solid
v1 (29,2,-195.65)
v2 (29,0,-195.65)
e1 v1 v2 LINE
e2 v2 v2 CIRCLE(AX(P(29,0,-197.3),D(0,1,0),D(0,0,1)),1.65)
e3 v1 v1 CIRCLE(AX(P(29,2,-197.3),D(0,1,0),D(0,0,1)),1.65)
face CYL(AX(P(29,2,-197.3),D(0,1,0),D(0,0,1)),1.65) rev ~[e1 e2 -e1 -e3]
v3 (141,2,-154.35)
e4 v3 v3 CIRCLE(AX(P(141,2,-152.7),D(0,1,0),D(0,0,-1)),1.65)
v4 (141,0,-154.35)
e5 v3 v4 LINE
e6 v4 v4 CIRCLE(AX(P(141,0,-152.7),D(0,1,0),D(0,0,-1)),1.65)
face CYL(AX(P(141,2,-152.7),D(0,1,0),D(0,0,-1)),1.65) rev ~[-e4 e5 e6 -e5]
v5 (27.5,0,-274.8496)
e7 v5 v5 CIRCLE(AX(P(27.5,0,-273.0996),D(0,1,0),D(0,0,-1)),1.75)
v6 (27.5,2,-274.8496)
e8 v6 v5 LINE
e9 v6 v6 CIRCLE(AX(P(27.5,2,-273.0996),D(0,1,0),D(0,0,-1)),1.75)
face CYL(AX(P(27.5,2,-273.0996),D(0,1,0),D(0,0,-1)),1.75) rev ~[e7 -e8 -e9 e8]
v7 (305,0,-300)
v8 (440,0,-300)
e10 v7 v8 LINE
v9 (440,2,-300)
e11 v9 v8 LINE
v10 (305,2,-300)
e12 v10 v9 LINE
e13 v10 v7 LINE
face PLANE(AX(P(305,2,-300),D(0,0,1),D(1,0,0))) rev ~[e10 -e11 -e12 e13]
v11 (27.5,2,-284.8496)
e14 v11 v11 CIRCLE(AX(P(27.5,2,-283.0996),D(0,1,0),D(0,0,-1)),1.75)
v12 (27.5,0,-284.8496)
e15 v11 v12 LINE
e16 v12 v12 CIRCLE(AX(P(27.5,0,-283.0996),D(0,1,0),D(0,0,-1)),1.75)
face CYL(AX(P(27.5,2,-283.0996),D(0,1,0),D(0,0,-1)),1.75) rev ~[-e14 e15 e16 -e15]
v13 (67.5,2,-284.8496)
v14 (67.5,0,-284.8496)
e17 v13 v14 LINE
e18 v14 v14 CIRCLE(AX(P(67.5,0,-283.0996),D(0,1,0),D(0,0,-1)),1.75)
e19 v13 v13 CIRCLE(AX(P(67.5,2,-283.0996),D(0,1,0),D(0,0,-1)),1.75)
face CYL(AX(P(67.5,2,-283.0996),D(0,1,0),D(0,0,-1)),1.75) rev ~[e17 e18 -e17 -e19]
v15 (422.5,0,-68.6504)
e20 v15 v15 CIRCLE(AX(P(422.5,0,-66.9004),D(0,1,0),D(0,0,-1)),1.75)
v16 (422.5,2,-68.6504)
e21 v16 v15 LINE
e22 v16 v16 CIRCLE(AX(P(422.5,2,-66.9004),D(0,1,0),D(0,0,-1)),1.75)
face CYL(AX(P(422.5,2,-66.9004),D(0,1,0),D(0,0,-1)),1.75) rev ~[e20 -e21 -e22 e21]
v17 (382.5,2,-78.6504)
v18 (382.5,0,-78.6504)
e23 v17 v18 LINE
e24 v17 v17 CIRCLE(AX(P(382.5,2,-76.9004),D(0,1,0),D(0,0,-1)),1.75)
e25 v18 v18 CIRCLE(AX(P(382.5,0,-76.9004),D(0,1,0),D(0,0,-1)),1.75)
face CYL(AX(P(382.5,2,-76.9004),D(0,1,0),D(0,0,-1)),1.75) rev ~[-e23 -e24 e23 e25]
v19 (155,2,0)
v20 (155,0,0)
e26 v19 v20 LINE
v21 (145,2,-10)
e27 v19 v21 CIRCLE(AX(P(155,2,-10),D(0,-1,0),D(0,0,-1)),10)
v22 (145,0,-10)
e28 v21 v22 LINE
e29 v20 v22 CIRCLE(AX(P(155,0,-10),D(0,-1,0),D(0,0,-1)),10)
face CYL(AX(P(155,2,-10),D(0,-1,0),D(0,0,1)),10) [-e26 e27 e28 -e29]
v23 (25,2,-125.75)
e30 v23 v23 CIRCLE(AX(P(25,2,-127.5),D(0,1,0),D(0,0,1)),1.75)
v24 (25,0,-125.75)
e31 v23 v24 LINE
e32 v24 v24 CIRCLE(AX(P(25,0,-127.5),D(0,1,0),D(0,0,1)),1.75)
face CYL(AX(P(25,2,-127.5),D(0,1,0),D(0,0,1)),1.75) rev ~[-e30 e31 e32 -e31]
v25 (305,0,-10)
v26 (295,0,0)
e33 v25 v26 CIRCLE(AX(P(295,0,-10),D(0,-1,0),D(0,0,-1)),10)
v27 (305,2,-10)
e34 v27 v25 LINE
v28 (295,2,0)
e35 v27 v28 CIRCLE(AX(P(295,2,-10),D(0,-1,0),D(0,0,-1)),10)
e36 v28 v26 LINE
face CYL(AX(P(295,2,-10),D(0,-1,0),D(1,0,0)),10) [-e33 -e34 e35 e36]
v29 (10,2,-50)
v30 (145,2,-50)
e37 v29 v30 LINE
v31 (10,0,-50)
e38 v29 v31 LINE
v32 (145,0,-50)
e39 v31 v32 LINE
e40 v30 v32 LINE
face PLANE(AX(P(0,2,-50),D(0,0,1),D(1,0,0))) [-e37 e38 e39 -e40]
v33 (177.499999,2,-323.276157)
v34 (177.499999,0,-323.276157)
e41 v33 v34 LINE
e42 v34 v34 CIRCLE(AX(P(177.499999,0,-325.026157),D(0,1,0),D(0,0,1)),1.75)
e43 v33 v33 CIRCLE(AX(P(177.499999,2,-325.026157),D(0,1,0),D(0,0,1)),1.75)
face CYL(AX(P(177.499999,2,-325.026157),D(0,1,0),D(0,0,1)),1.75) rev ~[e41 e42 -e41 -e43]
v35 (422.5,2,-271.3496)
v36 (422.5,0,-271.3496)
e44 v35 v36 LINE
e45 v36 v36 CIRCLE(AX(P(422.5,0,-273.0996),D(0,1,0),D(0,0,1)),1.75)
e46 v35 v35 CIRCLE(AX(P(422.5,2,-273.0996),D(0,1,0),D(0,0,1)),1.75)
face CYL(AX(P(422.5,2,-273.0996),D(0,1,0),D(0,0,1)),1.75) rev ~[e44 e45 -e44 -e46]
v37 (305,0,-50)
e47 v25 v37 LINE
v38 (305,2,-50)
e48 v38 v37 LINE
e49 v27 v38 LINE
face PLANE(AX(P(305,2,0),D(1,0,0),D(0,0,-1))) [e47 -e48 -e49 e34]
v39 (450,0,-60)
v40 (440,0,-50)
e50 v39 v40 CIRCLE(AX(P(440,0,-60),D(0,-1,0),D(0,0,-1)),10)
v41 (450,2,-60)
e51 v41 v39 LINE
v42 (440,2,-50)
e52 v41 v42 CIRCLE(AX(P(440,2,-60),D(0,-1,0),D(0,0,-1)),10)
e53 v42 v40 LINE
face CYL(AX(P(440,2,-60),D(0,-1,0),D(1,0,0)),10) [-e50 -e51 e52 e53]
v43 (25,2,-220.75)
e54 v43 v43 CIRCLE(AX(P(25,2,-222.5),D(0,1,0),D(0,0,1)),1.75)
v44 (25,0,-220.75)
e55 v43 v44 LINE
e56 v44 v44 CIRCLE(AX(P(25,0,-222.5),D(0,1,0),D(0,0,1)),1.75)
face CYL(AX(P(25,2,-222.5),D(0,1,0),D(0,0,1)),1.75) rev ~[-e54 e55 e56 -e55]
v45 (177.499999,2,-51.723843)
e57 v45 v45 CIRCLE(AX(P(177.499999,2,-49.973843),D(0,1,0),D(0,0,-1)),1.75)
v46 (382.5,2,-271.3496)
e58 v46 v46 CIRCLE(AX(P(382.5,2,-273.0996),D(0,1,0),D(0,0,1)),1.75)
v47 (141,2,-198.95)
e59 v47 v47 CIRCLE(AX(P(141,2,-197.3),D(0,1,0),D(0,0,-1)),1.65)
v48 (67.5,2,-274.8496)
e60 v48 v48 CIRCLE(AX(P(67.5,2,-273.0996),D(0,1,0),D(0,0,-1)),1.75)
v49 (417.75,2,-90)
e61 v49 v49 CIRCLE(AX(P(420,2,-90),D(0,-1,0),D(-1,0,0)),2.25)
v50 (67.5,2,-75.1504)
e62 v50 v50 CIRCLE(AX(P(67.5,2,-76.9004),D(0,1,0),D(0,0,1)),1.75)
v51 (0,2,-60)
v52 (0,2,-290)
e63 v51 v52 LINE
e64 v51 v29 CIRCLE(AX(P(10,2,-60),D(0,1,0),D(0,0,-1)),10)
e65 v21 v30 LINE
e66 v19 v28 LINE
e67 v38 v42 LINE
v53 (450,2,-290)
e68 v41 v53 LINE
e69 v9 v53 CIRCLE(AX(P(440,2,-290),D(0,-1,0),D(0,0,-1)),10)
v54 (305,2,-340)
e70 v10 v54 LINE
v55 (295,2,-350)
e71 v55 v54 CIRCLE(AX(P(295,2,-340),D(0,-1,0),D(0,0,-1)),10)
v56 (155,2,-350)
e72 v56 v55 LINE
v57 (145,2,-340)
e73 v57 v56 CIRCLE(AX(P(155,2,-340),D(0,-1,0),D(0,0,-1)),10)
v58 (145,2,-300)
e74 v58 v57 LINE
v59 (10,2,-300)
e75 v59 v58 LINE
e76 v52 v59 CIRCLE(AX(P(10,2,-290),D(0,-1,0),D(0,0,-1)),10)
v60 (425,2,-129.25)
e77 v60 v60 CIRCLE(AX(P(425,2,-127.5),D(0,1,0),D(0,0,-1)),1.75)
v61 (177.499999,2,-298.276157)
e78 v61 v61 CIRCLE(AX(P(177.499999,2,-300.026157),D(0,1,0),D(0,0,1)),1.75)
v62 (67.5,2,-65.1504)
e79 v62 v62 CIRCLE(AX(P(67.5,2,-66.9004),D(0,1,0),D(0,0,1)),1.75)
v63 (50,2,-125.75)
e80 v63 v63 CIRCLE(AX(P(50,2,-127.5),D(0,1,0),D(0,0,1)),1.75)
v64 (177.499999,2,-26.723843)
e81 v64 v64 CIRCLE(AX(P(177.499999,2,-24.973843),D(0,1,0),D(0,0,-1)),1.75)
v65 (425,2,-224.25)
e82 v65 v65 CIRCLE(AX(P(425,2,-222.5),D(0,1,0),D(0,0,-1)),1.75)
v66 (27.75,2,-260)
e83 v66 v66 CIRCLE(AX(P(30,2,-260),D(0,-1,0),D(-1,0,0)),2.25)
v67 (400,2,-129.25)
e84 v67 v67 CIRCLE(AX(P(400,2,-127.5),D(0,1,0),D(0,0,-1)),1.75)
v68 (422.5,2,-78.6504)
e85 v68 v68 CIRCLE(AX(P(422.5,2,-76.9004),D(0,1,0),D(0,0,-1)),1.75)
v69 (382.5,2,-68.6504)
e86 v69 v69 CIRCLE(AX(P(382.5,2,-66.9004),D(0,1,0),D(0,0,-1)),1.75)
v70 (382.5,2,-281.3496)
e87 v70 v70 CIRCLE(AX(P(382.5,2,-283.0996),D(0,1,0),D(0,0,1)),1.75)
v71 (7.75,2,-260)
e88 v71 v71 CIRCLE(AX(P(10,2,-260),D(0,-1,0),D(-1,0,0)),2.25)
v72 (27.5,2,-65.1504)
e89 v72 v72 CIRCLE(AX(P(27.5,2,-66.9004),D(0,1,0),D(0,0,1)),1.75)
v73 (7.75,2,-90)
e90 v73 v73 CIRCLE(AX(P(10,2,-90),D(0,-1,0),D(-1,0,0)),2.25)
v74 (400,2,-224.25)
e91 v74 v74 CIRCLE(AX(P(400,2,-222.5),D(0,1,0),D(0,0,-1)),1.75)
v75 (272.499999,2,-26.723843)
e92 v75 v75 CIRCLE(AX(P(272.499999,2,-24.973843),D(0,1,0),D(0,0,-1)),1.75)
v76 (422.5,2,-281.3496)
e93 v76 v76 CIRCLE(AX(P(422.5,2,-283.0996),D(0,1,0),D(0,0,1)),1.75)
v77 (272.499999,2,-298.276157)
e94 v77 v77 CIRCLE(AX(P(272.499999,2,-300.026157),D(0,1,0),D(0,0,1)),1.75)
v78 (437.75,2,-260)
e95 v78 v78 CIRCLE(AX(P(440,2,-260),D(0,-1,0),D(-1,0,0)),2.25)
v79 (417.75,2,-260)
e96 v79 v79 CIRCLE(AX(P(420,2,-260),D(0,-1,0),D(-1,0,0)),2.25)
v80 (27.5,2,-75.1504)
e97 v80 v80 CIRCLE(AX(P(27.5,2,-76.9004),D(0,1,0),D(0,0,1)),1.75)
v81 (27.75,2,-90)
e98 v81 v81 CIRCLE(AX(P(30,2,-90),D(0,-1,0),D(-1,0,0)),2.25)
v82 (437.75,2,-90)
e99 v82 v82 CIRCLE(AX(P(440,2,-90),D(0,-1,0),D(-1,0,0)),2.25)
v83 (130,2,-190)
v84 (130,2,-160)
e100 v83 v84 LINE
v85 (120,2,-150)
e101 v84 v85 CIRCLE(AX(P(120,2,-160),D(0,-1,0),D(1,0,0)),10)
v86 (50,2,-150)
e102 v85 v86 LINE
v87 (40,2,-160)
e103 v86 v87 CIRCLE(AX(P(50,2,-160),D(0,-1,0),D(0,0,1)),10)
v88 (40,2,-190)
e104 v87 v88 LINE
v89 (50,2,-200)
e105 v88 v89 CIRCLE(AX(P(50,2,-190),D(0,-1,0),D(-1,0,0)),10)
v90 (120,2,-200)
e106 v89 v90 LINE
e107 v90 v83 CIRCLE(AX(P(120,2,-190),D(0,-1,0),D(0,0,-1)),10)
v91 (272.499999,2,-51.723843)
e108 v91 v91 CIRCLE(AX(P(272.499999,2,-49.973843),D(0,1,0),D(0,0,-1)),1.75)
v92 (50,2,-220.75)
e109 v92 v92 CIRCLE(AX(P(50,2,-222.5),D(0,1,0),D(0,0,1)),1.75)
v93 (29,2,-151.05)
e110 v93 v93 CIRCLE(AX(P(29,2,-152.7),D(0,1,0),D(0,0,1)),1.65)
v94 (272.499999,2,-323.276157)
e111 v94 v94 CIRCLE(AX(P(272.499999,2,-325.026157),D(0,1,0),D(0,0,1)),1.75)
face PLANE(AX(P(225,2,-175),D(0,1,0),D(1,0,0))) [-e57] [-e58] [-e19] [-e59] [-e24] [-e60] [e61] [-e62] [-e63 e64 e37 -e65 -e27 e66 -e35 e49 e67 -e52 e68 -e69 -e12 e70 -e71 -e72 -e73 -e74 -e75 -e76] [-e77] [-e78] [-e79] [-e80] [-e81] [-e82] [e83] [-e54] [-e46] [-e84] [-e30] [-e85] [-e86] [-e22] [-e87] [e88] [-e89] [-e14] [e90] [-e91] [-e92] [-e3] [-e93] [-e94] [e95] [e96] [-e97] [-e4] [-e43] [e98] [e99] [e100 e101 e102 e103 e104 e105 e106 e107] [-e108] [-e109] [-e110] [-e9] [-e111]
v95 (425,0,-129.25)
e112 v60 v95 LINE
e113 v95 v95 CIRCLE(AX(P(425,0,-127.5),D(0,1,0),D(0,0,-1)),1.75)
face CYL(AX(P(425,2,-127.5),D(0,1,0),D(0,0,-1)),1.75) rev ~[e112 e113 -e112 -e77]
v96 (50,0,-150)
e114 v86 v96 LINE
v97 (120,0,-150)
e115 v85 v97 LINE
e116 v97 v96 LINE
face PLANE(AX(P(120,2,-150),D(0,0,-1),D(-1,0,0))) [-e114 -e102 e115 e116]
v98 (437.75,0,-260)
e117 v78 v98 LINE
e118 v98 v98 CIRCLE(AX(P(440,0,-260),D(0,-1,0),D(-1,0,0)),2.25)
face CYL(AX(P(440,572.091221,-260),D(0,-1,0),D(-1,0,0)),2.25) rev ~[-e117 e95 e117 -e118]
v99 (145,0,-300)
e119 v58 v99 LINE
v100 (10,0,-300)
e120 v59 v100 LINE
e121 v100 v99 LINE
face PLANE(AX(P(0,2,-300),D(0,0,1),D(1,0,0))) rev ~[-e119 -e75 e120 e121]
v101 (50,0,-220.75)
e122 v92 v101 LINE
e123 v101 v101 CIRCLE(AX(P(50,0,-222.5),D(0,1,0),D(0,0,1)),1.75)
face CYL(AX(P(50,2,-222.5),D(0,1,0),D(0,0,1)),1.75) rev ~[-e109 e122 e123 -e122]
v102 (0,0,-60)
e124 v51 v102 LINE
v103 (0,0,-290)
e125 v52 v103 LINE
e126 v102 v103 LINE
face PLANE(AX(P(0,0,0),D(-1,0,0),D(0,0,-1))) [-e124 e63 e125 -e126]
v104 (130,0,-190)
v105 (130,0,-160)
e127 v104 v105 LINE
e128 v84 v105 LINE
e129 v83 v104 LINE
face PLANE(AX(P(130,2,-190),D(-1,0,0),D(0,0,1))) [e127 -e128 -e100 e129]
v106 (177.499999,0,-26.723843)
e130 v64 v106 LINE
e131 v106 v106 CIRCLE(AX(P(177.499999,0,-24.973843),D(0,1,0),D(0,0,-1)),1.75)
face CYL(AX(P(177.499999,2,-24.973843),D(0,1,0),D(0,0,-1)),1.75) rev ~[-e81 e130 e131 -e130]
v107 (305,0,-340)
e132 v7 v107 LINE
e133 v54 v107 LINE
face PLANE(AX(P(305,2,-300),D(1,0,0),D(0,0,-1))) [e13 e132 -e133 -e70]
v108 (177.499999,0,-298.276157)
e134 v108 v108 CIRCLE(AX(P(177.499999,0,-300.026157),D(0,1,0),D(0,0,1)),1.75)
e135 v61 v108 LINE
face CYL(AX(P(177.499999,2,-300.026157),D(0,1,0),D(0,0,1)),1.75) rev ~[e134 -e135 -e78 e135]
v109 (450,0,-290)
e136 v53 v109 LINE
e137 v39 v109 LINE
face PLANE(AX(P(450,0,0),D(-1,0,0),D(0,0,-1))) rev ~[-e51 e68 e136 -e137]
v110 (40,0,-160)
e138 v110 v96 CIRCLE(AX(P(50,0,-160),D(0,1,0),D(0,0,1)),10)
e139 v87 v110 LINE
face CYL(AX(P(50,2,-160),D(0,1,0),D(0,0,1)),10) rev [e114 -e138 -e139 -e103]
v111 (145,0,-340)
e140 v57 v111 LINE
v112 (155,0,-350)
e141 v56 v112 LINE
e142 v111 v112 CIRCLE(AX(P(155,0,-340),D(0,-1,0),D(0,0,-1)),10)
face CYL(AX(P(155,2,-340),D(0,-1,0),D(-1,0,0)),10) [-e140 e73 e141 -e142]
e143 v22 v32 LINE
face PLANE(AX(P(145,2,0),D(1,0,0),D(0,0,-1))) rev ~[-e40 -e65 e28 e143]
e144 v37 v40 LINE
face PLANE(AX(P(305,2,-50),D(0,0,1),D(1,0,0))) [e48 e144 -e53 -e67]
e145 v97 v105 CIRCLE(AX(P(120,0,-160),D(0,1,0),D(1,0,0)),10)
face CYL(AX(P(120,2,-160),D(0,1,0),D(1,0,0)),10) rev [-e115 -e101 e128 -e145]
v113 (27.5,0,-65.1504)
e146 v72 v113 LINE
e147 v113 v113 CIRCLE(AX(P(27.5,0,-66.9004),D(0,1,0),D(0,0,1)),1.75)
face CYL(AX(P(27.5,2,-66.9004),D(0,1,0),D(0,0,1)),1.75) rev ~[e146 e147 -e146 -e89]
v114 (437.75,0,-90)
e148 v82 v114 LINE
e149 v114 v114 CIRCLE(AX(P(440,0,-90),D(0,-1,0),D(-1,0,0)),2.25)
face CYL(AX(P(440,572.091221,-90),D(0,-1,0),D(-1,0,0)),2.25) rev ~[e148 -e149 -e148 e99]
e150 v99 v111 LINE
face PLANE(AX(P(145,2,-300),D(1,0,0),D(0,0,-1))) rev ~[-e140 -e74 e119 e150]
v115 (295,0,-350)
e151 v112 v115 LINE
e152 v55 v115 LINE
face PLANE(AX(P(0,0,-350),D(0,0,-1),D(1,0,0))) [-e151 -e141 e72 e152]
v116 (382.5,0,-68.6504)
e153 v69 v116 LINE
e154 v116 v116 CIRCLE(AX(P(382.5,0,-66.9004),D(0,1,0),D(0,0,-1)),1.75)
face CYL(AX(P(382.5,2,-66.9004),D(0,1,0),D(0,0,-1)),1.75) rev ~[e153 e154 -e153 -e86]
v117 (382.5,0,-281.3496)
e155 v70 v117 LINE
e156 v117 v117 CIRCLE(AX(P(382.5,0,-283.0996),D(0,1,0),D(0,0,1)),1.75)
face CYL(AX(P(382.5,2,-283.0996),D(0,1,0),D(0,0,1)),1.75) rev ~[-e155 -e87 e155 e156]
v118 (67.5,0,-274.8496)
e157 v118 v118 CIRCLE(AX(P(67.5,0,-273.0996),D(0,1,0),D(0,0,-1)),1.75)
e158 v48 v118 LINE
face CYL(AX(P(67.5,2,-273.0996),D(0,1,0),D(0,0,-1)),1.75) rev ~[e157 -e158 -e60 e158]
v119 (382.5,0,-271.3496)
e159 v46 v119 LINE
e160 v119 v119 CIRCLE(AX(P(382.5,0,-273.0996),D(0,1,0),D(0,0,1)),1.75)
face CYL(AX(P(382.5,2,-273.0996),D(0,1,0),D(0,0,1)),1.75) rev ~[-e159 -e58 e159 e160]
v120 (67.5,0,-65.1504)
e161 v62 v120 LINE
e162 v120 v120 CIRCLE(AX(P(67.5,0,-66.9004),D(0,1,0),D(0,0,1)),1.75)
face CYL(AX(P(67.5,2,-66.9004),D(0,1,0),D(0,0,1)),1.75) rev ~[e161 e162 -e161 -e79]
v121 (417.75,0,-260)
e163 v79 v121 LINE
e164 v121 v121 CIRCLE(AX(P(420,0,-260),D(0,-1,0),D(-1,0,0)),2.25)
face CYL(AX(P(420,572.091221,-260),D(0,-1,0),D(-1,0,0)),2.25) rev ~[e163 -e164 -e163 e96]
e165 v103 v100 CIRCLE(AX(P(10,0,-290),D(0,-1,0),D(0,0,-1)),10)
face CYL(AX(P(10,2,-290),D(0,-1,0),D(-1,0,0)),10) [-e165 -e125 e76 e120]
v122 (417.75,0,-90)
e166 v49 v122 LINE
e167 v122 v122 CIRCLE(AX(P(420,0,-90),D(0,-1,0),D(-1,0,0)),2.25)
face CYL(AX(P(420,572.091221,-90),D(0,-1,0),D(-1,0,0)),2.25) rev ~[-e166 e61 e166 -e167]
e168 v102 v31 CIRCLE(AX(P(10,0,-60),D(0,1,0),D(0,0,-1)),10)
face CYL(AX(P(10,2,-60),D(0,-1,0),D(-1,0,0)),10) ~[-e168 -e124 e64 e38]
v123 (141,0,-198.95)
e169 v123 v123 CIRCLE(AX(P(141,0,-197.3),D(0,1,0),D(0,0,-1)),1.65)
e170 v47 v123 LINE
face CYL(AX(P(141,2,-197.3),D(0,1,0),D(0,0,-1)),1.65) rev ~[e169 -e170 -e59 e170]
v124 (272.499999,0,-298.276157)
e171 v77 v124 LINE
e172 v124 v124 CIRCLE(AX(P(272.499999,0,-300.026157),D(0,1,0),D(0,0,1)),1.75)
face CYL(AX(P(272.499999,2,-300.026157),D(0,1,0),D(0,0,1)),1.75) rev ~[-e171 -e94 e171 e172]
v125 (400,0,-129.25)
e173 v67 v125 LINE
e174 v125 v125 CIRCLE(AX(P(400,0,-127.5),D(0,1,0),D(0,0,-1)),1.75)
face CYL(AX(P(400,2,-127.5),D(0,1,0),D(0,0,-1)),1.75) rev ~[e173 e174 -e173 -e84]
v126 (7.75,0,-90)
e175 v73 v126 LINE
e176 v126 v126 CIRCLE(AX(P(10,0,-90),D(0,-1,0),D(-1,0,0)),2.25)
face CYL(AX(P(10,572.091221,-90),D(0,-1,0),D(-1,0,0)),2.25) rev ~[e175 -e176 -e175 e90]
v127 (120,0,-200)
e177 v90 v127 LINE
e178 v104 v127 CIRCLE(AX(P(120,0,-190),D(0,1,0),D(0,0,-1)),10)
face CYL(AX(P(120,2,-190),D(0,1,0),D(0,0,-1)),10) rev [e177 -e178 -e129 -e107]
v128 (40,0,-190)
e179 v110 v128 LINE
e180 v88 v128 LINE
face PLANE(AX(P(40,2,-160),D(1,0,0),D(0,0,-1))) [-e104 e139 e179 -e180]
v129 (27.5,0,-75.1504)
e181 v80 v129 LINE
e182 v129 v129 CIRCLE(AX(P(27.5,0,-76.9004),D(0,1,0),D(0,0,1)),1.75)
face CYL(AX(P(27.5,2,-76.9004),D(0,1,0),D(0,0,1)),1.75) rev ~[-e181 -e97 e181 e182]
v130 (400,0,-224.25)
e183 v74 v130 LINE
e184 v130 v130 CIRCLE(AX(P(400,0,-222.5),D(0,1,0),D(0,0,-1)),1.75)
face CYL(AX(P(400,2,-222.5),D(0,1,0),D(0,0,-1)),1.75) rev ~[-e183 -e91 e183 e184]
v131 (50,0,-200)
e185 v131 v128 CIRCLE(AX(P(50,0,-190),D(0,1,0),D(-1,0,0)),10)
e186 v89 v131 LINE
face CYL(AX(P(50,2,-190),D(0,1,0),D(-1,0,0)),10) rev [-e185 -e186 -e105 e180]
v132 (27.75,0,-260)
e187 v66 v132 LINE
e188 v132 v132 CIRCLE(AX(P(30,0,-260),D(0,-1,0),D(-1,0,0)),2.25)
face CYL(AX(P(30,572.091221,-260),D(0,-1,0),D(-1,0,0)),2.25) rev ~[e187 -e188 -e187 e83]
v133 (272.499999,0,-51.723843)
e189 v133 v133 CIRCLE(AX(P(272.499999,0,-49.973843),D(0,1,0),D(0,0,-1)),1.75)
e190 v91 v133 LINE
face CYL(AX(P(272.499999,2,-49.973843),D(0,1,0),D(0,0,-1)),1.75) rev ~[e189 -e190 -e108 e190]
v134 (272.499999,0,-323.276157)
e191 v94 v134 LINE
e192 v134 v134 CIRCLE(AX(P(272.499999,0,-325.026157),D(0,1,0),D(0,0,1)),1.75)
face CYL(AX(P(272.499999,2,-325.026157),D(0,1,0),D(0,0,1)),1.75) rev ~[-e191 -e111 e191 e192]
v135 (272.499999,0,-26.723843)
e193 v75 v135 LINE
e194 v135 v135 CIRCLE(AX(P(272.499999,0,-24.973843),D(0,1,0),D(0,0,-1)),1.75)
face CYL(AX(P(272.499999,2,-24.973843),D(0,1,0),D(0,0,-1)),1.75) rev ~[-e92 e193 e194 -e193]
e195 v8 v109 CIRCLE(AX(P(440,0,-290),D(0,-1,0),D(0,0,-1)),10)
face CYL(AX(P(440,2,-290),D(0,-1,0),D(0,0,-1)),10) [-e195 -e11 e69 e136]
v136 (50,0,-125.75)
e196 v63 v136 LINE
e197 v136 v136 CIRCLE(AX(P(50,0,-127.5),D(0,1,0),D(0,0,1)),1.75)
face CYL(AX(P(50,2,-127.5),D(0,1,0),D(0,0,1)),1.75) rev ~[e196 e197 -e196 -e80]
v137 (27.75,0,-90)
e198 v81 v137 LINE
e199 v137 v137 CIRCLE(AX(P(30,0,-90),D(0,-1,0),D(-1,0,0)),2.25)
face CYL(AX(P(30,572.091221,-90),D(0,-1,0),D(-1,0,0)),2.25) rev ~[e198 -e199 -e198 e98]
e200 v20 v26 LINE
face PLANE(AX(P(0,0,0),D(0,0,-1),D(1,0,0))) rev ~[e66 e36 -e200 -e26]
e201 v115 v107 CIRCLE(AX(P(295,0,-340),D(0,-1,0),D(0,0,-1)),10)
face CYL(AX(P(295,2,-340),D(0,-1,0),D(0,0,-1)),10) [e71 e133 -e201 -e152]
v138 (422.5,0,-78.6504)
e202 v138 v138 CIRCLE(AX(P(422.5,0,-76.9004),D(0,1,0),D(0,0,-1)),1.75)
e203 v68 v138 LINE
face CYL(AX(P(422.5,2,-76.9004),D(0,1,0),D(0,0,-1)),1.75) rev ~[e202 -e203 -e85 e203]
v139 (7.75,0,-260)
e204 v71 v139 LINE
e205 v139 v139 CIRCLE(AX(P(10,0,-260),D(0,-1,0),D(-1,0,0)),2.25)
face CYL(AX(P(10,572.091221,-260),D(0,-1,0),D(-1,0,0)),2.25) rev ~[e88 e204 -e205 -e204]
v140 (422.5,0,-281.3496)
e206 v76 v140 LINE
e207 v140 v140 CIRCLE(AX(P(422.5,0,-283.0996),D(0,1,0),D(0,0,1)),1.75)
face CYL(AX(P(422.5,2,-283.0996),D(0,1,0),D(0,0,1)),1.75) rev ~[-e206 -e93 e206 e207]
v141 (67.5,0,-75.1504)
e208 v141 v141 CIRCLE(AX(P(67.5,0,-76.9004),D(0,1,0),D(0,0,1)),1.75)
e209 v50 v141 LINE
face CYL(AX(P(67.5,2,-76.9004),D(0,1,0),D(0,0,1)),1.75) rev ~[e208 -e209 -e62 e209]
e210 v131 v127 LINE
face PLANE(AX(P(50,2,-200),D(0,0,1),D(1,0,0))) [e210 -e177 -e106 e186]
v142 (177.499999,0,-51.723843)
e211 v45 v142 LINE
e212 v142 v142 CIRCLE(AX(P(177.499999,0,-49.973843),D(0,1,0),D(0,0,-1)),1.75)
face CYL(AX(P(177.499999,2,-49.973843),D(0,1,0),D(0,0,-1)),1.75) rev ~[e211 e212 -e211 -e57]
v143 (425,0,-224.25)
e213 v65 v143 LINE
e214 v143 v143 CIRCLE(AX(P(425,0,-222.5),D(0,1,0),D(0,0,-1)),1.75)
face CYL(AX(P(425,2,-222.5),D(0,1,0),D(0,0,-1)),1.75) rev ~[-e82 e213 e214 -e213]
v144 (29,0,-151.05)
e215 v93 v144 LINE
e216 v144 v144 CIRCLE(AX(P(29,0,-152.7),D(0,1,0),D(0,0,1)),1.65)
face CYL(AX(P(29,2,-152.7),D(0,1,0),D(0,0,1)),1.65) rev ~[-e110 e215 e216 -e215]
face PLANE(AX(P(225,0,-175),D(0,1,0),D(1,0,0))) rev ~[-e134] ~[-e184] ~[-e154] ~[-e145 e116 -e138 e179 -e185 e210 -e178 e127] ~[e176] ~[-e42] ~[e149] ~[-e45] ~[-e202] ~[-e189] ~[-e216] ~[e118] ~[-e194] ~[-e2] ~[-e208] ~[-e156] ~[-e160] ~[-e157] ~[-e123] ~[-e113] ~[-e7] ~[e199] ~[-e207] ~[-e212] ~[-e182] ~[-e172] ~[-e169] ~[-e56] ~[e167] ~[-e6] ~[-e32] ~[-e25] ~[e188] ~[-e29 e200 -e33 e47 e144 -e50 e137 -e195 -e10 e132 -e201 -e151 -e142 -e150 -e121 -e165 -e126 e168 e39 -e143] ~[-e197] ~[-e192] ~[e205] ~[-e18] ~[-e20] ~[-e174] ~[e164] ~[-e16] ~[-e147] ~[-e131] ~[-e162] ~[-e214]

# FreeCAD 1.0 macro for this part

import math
import FreeCAD as App
import Part
import Sketcher

V = App.Vector


def edges_at(feature, points):
    """Names of the edges that pass closest to the given points."""
    edges = feature.Shape.Edges
    near = lambda p: min(range(len(edges)), key=lambda i: edges[i].distToShape(Part.Vertex(*p))[0])
    return sorted({f"Edge{near(p) + 1}" for p in points})

doc = App.newDocument("Part")
body = doc.addObject("PartDesign::Body", "Body")

sketch1 = body.newObject("Sketcher::SketchObject", "Sketch")
sketch1.AttachmentSupport = (doc.getObject("XZ_Plane"), [""])
sketch1.MapMode = "FlatFace"
sketch1.addGeometry([
    Part.LineSegment(V(0, -350, 0), V(0, 0, 0)),
    Part.LineSegment(V(0, 0, 0), V(450, 0, 0)),
    Part.LineSegment(V(450, 0, 0), V(450, -350, 0)),
    Part.LineSegment(V(450, -350, 0), V(0, -350, 0)),
], False)
sketch1.addConstraint([
    Sketcher.Constraint("Coincident", 0, 2, 1, 1),
    Sketcher.Constraint("Coincident", 1, 2, 2, 1),
    Sketcher.Constraint("Coincident", 2, 2, 3, 1),
    Sketcher.Constraint("Coincident", 3, 2, 0, 1),
    Sketcher.Constraint("Vertical", 0),
    Sketcher.Constraint("Horizontal", 1),
    Sketcher.Constraint("Vertical", 2),
    Sketcher.Constraint("Horizontal", 3),
    Sketcher.Constraint("Coincident", 0, 2, -1, 1),
    Sketcher.Constraint("DistanceX", 1, 1, 1, 2, 450.0),
    Sketcher.Constraint("DistanceY", 0, 1, 0, 2, 350.0),
])
pad1 = body.newObject("PartDesign::Pad", "Pad")
pad1.Profile = sketch1
pad1.Length = 2
pad1.Reversed = True
doc.recompute()

fillet = body.newObject("PartDesign::Fillet", "Fillet")
fillet.Base = (pad1, edges_at(pad1, [
    (0, 1, 0),
    (0, 1, -350),
    (450, 1, -350),
    (450, 1, 0),
]))
fillet.Radius = 10

sketch2 = body.newObject("Sketcher::SketchObject", "Sketch001")
sketch2.AttachmentSupport = (doc.getObject("XZ_Plane"), [""])
sketch2.MapMode = "FlatFace"
sketch2.AttachmentOffset = App.Placement(V(0, 0, -2), App.Rotation())
sketch2.addGeometry([
    Part.LineSegment(V(130, -160, 0), V(130, -190, 0)),
    Part.ArcOfCircle(Part.Circle(V(120, -190, 0), V(0, 0, 1), 10), math.radians(-90), math.radians(0)),
    Part.LineSegment(V(120, -200, 0), V(50, -200, 0)),
    Part.ArcOfCircle(Part.Circle(V(50, -190, 0), V(0, 0, 1), 10), math.radians(180), math.radians(270)),
    Part.LineSegment(V(40, -190, 0), V(40, -160, 0)),
    Part.ArcOfCircle(Part.Circle(V(50, -160, 0), V(0, 0, 1), 10), math.radians(90), math.radians(180)),
    Part.LineSegment(V(50, -150, 0), V(120, -150, 0)),
    Part.ArcOfCircle(Part.Circle(V(120, -160, 0), V(0, 0, 1), 10), math.radians(0), math.radians(90)),
], False)
sketch2.addConstraint([
    Sketcher.Constraint("Tangent", 0, 2, 1, 2),
    Sketcher.Constraint("Tangent", 1, 1, 2, 1),
    Sketcher.Constraint("Tangent", 2, 2, 3, 2),
    Sketcher.Constraint("Tangent", 3, 1, 4, 1),
    Sketcher.Constraint("Tangent", 4, 2, 5, 2),
    Sketcher.Constraint("Tangent", 5, 1, 6, 1),
    Sketcher.Constraint("Tangent", 6, 2, 7, 2),
    Sketcher.Constraint("Tangent", 7, 1, 0, 1),
    Sketcher.Constraint("Vertical", 0),
    Sketcher.Constraint("Horizontal", 2),
    Sketcher.Constraint("Vertical", 4),
    Sketcher.Constraint("Horizontal", 6),
    Sketcher.Constraint("Equal", 1, 3),
    Sketcher.Constraint("Equal", 3, 5),
    Sketcher.Constraint("Equal", 5, 7),
    Sketcher.Constraint("Radius", 1, 10.0),
    Sketcher.Constraint("DistanceX", 2, 2, 2, 1, 70.0),
    Sketcher.Constraint("DistanceY", 0, 2, 0, 1, 30.0),
    Sketcher.Constraint("DistanceX", -1, 1, 1, 3, 120.0),
    Sketcher.Constraint("DistanceY", 1, 3, -1, 1, 190.0),
])
pocket1 = body.newObject("PartDesign::Pocket", "Pocket")
pocket1.Profile = sketch2
pocket1.Type = "ThroughAll"
pocket1.Reversed = True

sketch3 = body.newObject("Sketcher::SketchObject", "Sketch002")
sketch3.AttachmentSupport = (doc.getObject("XZ_Plane"), [""])
sketch3.MapMode = "FlatFace"
sketch3.AttachmentOffset = App.Placement(V(0, 0, -2), App.Rotation())
sketch3.addGeometry([
    Part.Circle(V(135, -10, 0), V(0, 0, 1), 2.25),
    Part.Circle(V(135, -30, 0), V(0, 0, 1), 2.25),
    Part.Circle(V(10, -90, 0), V(0, 0, 1), 2.25),
    Part.Circle(V(30, -90, 0), V(0, 0, 1), 2.25),
    Part.Circle(V(315, -10, 0), V(0, 0, 1), 2.25),
    Part.Circle(V(315, -30, 0), V(0, 0, 1), 2.25),
    Part.Circle(V(420, -90, 0), V(0, 0, 1), 2.25),
    Part.Circle(V(440, -90, 0), V(0, 0, 1), 2.25),
    Part.Circle(V(440, -260, 0), V(0, 0, 1), 2.25),
    Part.Circle(V(420, -260, 0), V(0, 0, 1), 2.25),
    Part.Circle(V(315, -340, 0), V(0, 0, 1), 2.25),
    Part.Circle(V(315, -320, 0), V(0, 0, 1), 2.25),
    Part.Circle(V(135, -340, 0), V(0, 0, 1), 2.25),
    Part.Circle(V(135, -320, 0), V(0, 0, 1), 2.25),
    Part.Circle(V(30, -260, 0), V(0, 0, 1), 2.25),
    Part.Circle(V(10, -260, 0), V(0, 0, 1), 2.25),
], False)
sketch3.addConstraint([
    Sketcher.Constraint("Equal", 0, 1),
    Sketcher.Constraint("Equal", 1, 2),
    Sketcher.Constraint("Equal", 2, 3),
    Sketcher.Constraint("Equal", 3, 4),
    Sketcher.Constraint("Equal", 4, 5),
    Sketcher.Constraint("Equal", 5, 6),
    Sketcher.Constraint("Equal", 6, 7),
    Sketcher.Constraint("Equal", 7, 8),
    Sketcher.Constraint("Equal", 8, 9),
    Sketcher.Constraint("Equal", 9, 10),
    Sketcher.Constraint("Equal", 10, 11),
    Sketcher.Constraint("Equal", 11, 12),
    Sketcher.Constraint("Equal", 12, 13),
    Sketcher.Constraint("Equal", 13, 14),
    Sketcher.Constraint("Equal", 14, 15),
    Sketcher.Constraint("Horizontal", 2, 3, 3, 3),
    Sketcher.Constraint("Horizontal", 0, 3, 4, 3),
    Sketcher.Constraint("Horizontal", 1, 3, 5, 3),
    Sketcher.Constraint("Horizontal", 3, 3, 6, 3),
    Sketcher.Constraint("Horizontal", 6, 3, 7, 3),
    Sketcher.Constraint("Horizontal", 8, 3, 9, 3),
    Sketcher.Constraint("Horizontal", 10, 3, 12, 3),
    Sketcher.Constraint("Horizontal", 11, 3, 13, 3),
    Sketcher.Constraint("Horizontal", 9, 3, 14, 3),
    Sketcher.Constraint("Horizontal", 14, 3, 15, 3),
    Sketcher.Constraint("Vertical", 0, 3, 1, 3),
    Sketcher.Constraint("Vertical", 4, 3, 5, 3),
    Sketcher.Constraint("Vertical", 7, 3, 8, 3),
    Sketcher.Constraint("Vertical", 6, 3, 9, 3),
    Sketcher.Constraint("Vertical", 5, 3, 10, 3),
    Sketcher.Constraint("Vertical", 10, 3, 11, 3),
    Sketcher.Constraint("Vertical", 1, 3, 12, 3),
    Sketcher.Constraint("Vertical", 12, 3, 13, 3),
    Sketcher.Constraint("Vertical", 3, 3, 14, 3),
    Sketcher.Constraint("Vertical", 2, 3, 15, 3),
    Sketcher.Constraint("Diameter", 0, 4.5),
    Sketcher.Constraint("DistanceX", -1, 1, 0, 3, 135.0),
    Sketcher.Constraint("DistanceY", 0, 3, -1, 1, 10.0),
    Sketcher.Constraint("DistanceY", 1, 3, -1, 1, 30.0),
    Sketcher.Constraint("DistanceX", -1, 1, 2, 3, 10.0),
    Sketcher.Constraint("DistanceY", 2, 3, -1, 1, 90.0),
    Sketcher.Constraint("DistanceX", -1, 1, 3, 3, 30.0),
    Sketcher.Constraint("DistanceX", -1, 1, 4, 3, 315.0),
    Sketcher.Constraint("DistanceX", -1, 1, 6, 3, 420.0),
    Sketcher.Constraint("DistanceX", -1, 1, 7, 3, 440.0),
    Sketcher.Constraint("DistanceY", 8, 3, -1, 1, 260.0),
    Sketcher.Constraint("DistanceY", 10, 3, -1, 1, 340.0),
    Sketcher.Constraint("DistanceY", 11, 3, -1, 1, 320.0),
])
doc.recompute()
hole = body.newObject("PartDesign::Hole", "Hole")
hole.Profile = sketch3
hole.ThreadType = "None"
hole.Diameter = 4.5
hole.DepthType = "ThroughAll"
hole.Reversed = True

sketch4 = body.newObject("Sketcher::SketchObject", "Sketch003")
sketch4.AttachmentSupport = (doc.getObject("XZ_Plane"), [""])
sketch4.MapMode = "FlatFace"
sketch4.AttachmentOffset = App.Placement(V(0, 0, -2), App.Rotation())
sketch4.addGeometry([
    Part.Circle(V(272.499999, -49.973843, 0), V(0, 0, 1), 1.75),
    Part.Circle(V(272.499999, -24.973843, 0), V(0, 0, 1), 1.75),
    Part.Circle(V(177.499999, -49.973843, 0), V(0, 0, 1), 1.75),
    Part.Circle(V(177.499999, -24.973843, 0), V(0, 0, 1), 1.75),
    Part.Circle(V(25, -222.5, 0), V(0, 0, 1), 1.75),
    Part.Circle(V(50, -222.5, 0), V(0, 0, 1), 1.75),
    Part.Circle(V(50, -127.5, 0), V(0, 0, 1), 1.75),
    Part.Circle(V(25, -127.5, 0), V(0, 0, 1), 1.75),
    Part.Circle(V(177.499999, -325.026157, 0), V(0, 0, 1), 1.75),
    Part.Circle(V(272.499999, -325.026157, 0), V(0, 0, 1), 1.75),
    Part.Circle(V(272.499999, -300.026157, 0), V(0, 0, 1), 1.75),
    Part.Circle(V(177.499999, -300.026157, 0), V(0, 0, 1), 1.75),
    Part.Circle(V(425, -127.5, 0), V(0, 0, 1), 1.75),
    Part.Circle(V(400, -127.5, 0), V(0, 0, 1), 1.75),
    Part.Circle(V(400, -222.5, 0), V(0, 0, 1), 1.75),
    Part.Circle(V(425, -222.5, 0), V(0, 0, 1), 1.75),
], False)
sketch4.addConstraint([
    Sketcher.Constraint("Equal", 0, 1),
    Sketcher.Constraint("Equal", 1, 2),
    Sketcher.Constraint("Equal", 2, 3),
    Sketcher.Constraint("Equal", 3, 4),
    Sketcher.Constraint("Equal", 4, 5),
    Sketcher.Constraint("Equal", 5, 6),
    Sketcher.Constraint("Equal", 6, 7),
    Sketcher.Constraint("Equal", 7, 8),
    Sketcher.Constraint("Equal", 8, 9),
    Sketcher.Constraint("Equal", 9, 10),
    Sketcher.Constraint("Equal", 10, 11),
    Sketcher.Constraint("Equal", 11, 12),
    Sketcher.Constraint("Equal", 12, 13),
    Sketcher.Constraint("Equal", 13, 14),
    Sketcher.Constraint("Equal", 14, 15),
    Sketcher.Constraint("Horizontal", 0, 3, 2, 3),
    Sketcher.Constraint("Horizontal", 1, 3, 3, 3),
    Sketcher.Constraint("Horizontal", 4, 3, 5, 3),
    Sketcher.Constraint("Horizontal", 6, 3, 7, 3),
    Sketcher.Constraint("Horizontal", 8, 3, 9, 3),
    Sketcher.Constraint("Horizontal", 10, 3, 11, 3),
    Sketcher.Constraint("Horizontal", 7, 3, 12, 3),
    Sketcher.Constraint("Horizontal", 12, 3, 13, 3),
    Sketcher.Constraint("Horizontal", 5, 3, 14, 3),
    Sketcher.Constraint("Horizontal", 14, 3, 15, 3),
    Sketcher.Constraint("Vertical", 0, 3, 1, 3),
    Sketcher.Constraint("Vertical", 2, 3, 3, 3),
    Sketcher.Constraint("Vertical", 5, 3, 6, 3),
    Sketcher.Constraint("Vertical", 4, 3, 7, 3),
    Sketcher.Constraint("Vertical", 3, 3, 8, 3),
    Sketcher.Constraint("Vertical", 1, 3, 9, 3),
    Sketcher.Constraint("Vertical", 9, 3, 10, 3),
    Sketcher.Constraint("Vertical", 8, 3, 11, 3),
    Sketcher.Constraint("Vertical", 13, 3, 14, 3),
    Sketcher.Constraint("Vertical", 12, 3, 15, 3),
    Sketcher.Constraint("Diameter", 0, 3.5),
    Sketcher.Constraint("DistanceX", -1, 1, 4, 3, 25.0),
    Sketcher.Constraint("DistanceX", -1, 1, 5, 3, 50.0),
    Sketcher.Constraint("DistanceX", -1, 1, 12, 3, 425.0),
    Sketcher.Constraint("DistanceX", -1, 1, 13, 3, 400.0),
    Sketcher.Constraint("DistanceY", 0, 3, 1, 3, 25.0),
    Sketcher.Constraint("DistanceX", 2, 3, 0, 3, 95.0),
    Sketcher.Constraint("DistanceY", 5, 3, 6, 3, 95.0),
    Sketcher.Constraint("DistanceY", 9, 3, 10, 3, 25.0),
    Sketcher.Constraint("DistanceX", -1, 1, 0, 3, 272.499999),
    Sketcher.Constraint("DistanceY", 4, 3, -1, 1, 222.5),
    Sketcher.Constraint("DistanceY", 0, 3, -1, 1, 49.973843),
    Sketcher.Constraint("DistanceY", 8, 3, -1, 1, 325.026157),
])
pocket2 = body.newObject("PartDesign::Pocket", "Pocket001")
pocket2.Profile = sketch4
pocket2.Type = "ThroughAll"
pocket2.Reversed = True

sketch5 = body.newObject("Sketcher::SketchObject", "Sketch004")
sketch5.AttachmentSupport = (doc.getObject("XZ_Plane"), [""])
sketch5.MapMode = "FlatFace"
sketch5.AttachmentOffset = App.Placement(V(0, 0, -2), App.Rotation())
sketch5.addGeometry([
    Part.Circle(V(27.5, -76.9004, 0), V(0, 0, 1), 1.75),
    Part.Circle(V(67.5, -76.9004, 0), V(0, 0, 1), 1.75),
    Part.Circle(V(67.5, -66.9004, 0), V(0, 0, 1), 1.75),
    Part.Circle(V(27.5, -66.9004, 0), V(0, 0, 1), 1.75),
    Part.Circle(V(67.5, -283.0996, 0), V(0, 0, 1), 1.75),
    Part.Circle(V(67.5, -273.0996, 0), V(0, 0, 1), 1.75),
    Part.Circle(V(27.5, -283.0996, 0), V(0, 0, 1), 1.75),
    Part.Circle(V(27.5, -273.0996, 0), V(0, 0, 1), 1.75),
    Part.Circle(V(382.5, -273.0996, 0), V(0, 0, 1), 1.75),
    Part.Circle(V(382.5, -283.0996, 0), V(0, 0, 1), 1.75),
    Part.Circle(V(422.5, -283.0996, 0), V(0, 0, 1), 1.75),
    Part.Circle(V(422.5, -273.0996, 0), V(0, 0, 1), 1.75),
    Part.Circle(V(422.5, -66.9004, 0), V(0, 0, 1), 1.75),
    Part.Circle(V(382.5, -66.9004, 0), V(0, 0, 1), 1.75),
    Part.Circle(V(382.5, -76.9004, 0), V(0, 0, 1), 1.75),
    Part.Circle(V(422.5, -76.9004, 0), V(0, 0, 1), 1.75),
], False)
sketch5.addConstraint([
    Sketcher.Constraint("Equal", 0, 1),
    Sketcher.Constraint("Equal", 1, 2),
    Sketcher.Constraint("Equal", 2, 3),
    Sketcher.Constraint("Equal", 3, 4),
    Sketcher.Constraint("Equal", 4, 5),
    Sketcher.Constraint("Equal", 5, 6),
    Sketcher.Constraint("Equal", 6, 7),
    Sketcher.Constraint("Equal", 7, 8),
    Sketcher.Constraint("Equal", 8, 9),
    Sketcher.Constraint("Equal", 9, 10),
    Sketcher.Constraint("Equal", 10, 11),
    Sketcher.Constraint("Equal", 11, 12),
    Sketcher.Constraint("Equal", 12, 13),
    Sketcher.Constraint("Equal", 13, 14),
    Sketcher.Constraint("Equal", 14, 15),
    Sketcher.Constraint("Horizontal", 0, 3, 1, 3),
    Sketcher.Constraint("Horizontal", 2, 3, 3, 3),
    Sketcher.Constraint("Horizontal", 4, 3, 6, 3),
    Sketcher.Constraint("Horizontal", 5, 3, 7, 3),
    Sketcher.Constraint("Horizontal", 7, 3, 8, 3),
    Sketcher.Constraint("Horizontal", 6, 3, 9, 3),
    Sketcher.Constraint("Horizontal", 9, 3, 10, 3),
    Sketcher.Constraint("Horizontal", 8, 3, 11, 3),
    Sketcher.Constraint("Horizontal", 3, 3, 12, 3),
    Sketcher.Constraint("Horizontal", 12, 3, 13, 3),
    Sketcher.Constraint("Horizontal", 1, 3, 14, 3),
    Sketcher.Constraint("Horizontal", 14, 3, 15, 3),
    Sketcher.Constraint("Vertical", 1, 3, 2, 3),
    Sketcher.Constraint("Vertical", 0, 3, 3, 3),
    Sketcher.Constraint("Vertical", 2, 3, 4, 3),
    Sketcher.Constraint("Vertical", 4, 3, 5, 3),
    Sketcher.Constraint("Vertical", 3, 3, 6, 3),
    Sketcher.Constraint("Vertical", 6, 3, 7, 3),
    Sketcher.Constraint("Vertical", 8, 3, 9, 3),
    Sketcher.Constraint("Vertical", 10, 3, 11, 3),
    Sketcher.Constraint("Vertical", 11, 3, 12, 3),
    Sketcher.Constraint("Vertical", 9, 3, 13, 3),
    Sketcher.Constraint("Vertical", 13, 3, 14, 3),
    Sketcher.Constraint("Vertical", 12, 3, 15, 3),
    Sketcher.Constraint("Diameter", 0, 3.5),
    Sketcher.Constraint("DistanceX", 0, 3, 1, 3, 40.0),
    Sketcher.Constraint("DistanceY", 1, 3, 2, 3, 10.0),
    Sketcher.Constraint("DistanceY", 4, 3, 5, 3, 10.0),
    Sketcher.Constraint("DistanceX", 5, 3, 8, 3, 315.0),
    Sketcher.Constraint("DistanceX", 9, 3, 10, 3, 40.0),
    Sketcher.Constraint("DistanceX", -1, 1, 0, 3, 27.5),
    Sketcher.Constraint("DistanceY", 0, 3, -1, 1, 76.9004),
    Sketcher.Constraint("DistanceY", 4, 3, -1, 1, 283.0996),
])
pocket3 = body.newObject("PartDesign::Pocket", "Pocket002")
pocket3.Profile = sketch5
pocket3.Type = "ThroughAll"
pocket3.Reversed = True

sketch6 = body.newObject("Sketcher::SketchObject", "Sketch005")
sketch6.AttachmentSupport = (doc.getObject("XZ_Plane"), [""])
sketch6.MapMode = "FlatFace"
sketch6.AttachmentOffset = App.Placement(V(0, 0, -2), App.Rotation())
sketch6.addGeometry([
    Part.LineSegment(V(0, -350, 0), V(0, -300, 0)),
    Part.LineSegment(V(0, -300, 0), V(145, -300, 0)),
    Part.LineSegment(V(145, -300, 0), V(145, -350, 0)),
    Part.LineSegment(V(145, -350, 0), V(0, -350, 0)),
    Part.LineSegment(V(0, -50, 0), V(0, 0, 0)),
    Part.LineSegment(V(0, 0, 0), V(145, 0, 0)),
    Part.LineSegment(V(145, 0, 0), V(145, -50, 0)),
    Part.LineSegment(V(145, -50, 0), V(0, -50, 0)),
    Part.LineSegment(V(305, -50, 0), V(305, 0, 0)),
    Part.LineSegment(V(305, 0, 0), V(450, 0, 0)),
    Part.LineSegment(V(450, 0, 0), V(450, -50, 0)),
    Part.LineSegment(V(450, -50, 0), V(305, -50, 0)),
    Part.LineSegment(V(305, -350, 0), V(305, -300, 0)),
    Part.LineSegment(V(305, -300, 0), V(450, -300, 0)),
    Part.LineSegment(V(450, -300, 0), V(450, -350, 0)),
    Part.LineSegment(V(450, -350, 0), V(305, -350, 0)),
], False)
sketch6.addConstraint([
    Sketcher.Constraint("Coincident", 0, 2, 1, 1),
    Sketcher.Constraint("Coincident", 1, 2, 2, 1),
    Sketcher.Constraint("Coincident", 2, 2, 3, 1),
    Sketcher.Constraint("Coincident", 3, 2, 0, 1),
    Sketcher.Constraint("Coincident", 4, 2, 5, 1),
    Sketcher.Constraint("Coincident", 5, 2, 6, 1),
    Sketcher.Constraint("Coincident", 6, 2, 7, 1),
    Sketcher.Constraint("Coincident", 7, 2, 4, 1),
    Sketcher.Constraint("Coincident", 8, 2, 9, 1),
    Sketcher.Constraint("Coincident", 9, 2, 10, 1),
    Sketcher.Constraint("Coincident", 10, 2, 11, 1),
    Sketcher.Constraint("Coincident", 11, 2, 8, 1),
    Sketcher.Constraint("Coincident", 12, 2, 13, 1),
    Sketcher.Constraint("Coincident", 13, 2, 14, 1),
    Sketcher.Constraint("Coincident", 14, 2, 15, 1),
    Sketcher.Constraint("Coincident", 15, 2, 12, 1),
    Sketcher.Constraint("Vertical", 0),
    Sketcher.Constraint("Horizontal", 1),
    Sketcher.Constraint("Vertical", 2),
    Sketcher.Constraint("Horizontal", 3),
    Sketcher.Constraint("Vertical", 4),
    Sketcher.Constraint("Horizontal", 5),
    Sketcher.Constraint("Vertical", 6),
    Sketcher.Constraint("Horizontal", 7),
    Sketcher.Constraint("Vertical", 8),
    Sketcher.Constraint("Horizontal", 9),
    Sketcher.Constraint("Vertical", 10),
    Sketcher.Constraint("Horizontal", 11),
    Sketcher.Constraint("Vertical", 12),
    Sketcher.Constraint("Horizontal", 13),
    Sketcher.Constraint("Vertical", 14),
    Sketcher.Constraint("Horizontal", 15),
    Sketcher.Constraint("Coincident", 4, 2, -1, 1),
    Sketcher.Constraint("PointOnObject", 0, 2, -2),
    Sketcher.Constraint("PointOnObject", 8, 2, -1),
    Sketcher.Constraint("Horizontal", 7, 2, 10, 2),
    Sketcher.Constraint("Horizontal", 1, 2, 12, 2),
    Sketcher.Constraint("Horizontal", 3, 2, 14, 2),
    Sketcher.Constraint("Vertical", 2, 2, 5, 2),
    Sketcher.Constraint("Vertical", 11, 2, 12, 2),
    Sketcher.Constraint("Vertical", 10, 2, 13, 2),
    Sketcher.Constraint("Equal", 7, 9),
    Sketcher.Constraint("Equal", 2, 4),
    Sketcher.Constraint("DistanceX", 1, 1, 1, 2, 145.0),
    Sketcher.Constraint("DistanceY", 0, 1, 0, 2, 50.0),
    Sketcher.Constraint("DistanceY", 0, 2, -1, 1, 300.0),
    Sketcher.Constraint("DistanceX", -1, 1, 8, 2, 305.0),
])
pocket4 = body.newObject("PartDesign::Pocket", "Pocket003")
pocket4.Profile = sketch6
pocket4.Type = "ThroughAll"
pocket4.Reversed = True
doc.recompute()

fillet2 = body.newObject("PartDesign::Fillet", "Fillet001")
fillet2.Base = (pocket4, edges_at(pocket4, [
    (305, 1, -350),
    (450, 1, -300),
    (450, 1, -50),
    (305, 1, 0),
    (145, 1, 0),
    (0, 1, -50),
    (0, 1, -300),
    (145, 1, -350),
]))
fillet2.Radius = 10

sketch7 = body.newObject("Sketcher::SketchObject", "Sketch006")
sketch7.AttachmentSupport = (doc.getObject("XZ_Plane"), [""])
sketch7.MapMode = "FlatFace"
sketch7.AttachmentOffset = App.Placement(V(0, 0, -2), App.Rotation())
sketch7.addGeometry([
    Part.Circle(V(29, -197.3, 0), V(0, 0, 1), 1.65),
    Part.Circle(V(29, -152.7, 0), V(0, 0, 1), 1.65),
    Part.Circle(V(141, -152.7, 0), V(0, 0, 1), 1.65),
    Part.Circle(V(141, -197.3, 0), V(0, 0, 1), 1.65),
], False)
sketch7.addConstraint([
    Sketcher.Constraint("Equal", 0, 1),
    Sketcher.Constraint("Equal", 1, 2),
    Sketcher.Constraint("Equal", 2, 3),
    Sketcher.Constraint("Horizontal", 1, 3, 2, 3),
    Sketcher.Constraint("Horizontal", 0, 3, 3, 3),
    Sketcher.Constraint("Vertical", 0, 3, 1, 3),
    Sketcher.Constraint("Vertical", 2, 3, 3, 3),
    Sketcher.Constraint("Diameter", 0, 3.3),
    Sketcher.Constraint("DistanceX", -1, 1, 0, 3, 29.0),
    Sketcher.Constraint("DistanceX", -1, 1, 2, 3, 141.0),
    Sketcher.Constraint("DistanceY", 0, 3, -1, 1, 197.3),
    Sketcher.Constraint("DistanceY", 1, 3, -1, 1, 152.7),
])
pocket5 = body.newObject("PartDesign::Pocket", "Pocket004")
pocket5.Profile = sketch7
pocket5.Type = "ThroughAll"
pocket5.Reversed = True

doc.recompute()
